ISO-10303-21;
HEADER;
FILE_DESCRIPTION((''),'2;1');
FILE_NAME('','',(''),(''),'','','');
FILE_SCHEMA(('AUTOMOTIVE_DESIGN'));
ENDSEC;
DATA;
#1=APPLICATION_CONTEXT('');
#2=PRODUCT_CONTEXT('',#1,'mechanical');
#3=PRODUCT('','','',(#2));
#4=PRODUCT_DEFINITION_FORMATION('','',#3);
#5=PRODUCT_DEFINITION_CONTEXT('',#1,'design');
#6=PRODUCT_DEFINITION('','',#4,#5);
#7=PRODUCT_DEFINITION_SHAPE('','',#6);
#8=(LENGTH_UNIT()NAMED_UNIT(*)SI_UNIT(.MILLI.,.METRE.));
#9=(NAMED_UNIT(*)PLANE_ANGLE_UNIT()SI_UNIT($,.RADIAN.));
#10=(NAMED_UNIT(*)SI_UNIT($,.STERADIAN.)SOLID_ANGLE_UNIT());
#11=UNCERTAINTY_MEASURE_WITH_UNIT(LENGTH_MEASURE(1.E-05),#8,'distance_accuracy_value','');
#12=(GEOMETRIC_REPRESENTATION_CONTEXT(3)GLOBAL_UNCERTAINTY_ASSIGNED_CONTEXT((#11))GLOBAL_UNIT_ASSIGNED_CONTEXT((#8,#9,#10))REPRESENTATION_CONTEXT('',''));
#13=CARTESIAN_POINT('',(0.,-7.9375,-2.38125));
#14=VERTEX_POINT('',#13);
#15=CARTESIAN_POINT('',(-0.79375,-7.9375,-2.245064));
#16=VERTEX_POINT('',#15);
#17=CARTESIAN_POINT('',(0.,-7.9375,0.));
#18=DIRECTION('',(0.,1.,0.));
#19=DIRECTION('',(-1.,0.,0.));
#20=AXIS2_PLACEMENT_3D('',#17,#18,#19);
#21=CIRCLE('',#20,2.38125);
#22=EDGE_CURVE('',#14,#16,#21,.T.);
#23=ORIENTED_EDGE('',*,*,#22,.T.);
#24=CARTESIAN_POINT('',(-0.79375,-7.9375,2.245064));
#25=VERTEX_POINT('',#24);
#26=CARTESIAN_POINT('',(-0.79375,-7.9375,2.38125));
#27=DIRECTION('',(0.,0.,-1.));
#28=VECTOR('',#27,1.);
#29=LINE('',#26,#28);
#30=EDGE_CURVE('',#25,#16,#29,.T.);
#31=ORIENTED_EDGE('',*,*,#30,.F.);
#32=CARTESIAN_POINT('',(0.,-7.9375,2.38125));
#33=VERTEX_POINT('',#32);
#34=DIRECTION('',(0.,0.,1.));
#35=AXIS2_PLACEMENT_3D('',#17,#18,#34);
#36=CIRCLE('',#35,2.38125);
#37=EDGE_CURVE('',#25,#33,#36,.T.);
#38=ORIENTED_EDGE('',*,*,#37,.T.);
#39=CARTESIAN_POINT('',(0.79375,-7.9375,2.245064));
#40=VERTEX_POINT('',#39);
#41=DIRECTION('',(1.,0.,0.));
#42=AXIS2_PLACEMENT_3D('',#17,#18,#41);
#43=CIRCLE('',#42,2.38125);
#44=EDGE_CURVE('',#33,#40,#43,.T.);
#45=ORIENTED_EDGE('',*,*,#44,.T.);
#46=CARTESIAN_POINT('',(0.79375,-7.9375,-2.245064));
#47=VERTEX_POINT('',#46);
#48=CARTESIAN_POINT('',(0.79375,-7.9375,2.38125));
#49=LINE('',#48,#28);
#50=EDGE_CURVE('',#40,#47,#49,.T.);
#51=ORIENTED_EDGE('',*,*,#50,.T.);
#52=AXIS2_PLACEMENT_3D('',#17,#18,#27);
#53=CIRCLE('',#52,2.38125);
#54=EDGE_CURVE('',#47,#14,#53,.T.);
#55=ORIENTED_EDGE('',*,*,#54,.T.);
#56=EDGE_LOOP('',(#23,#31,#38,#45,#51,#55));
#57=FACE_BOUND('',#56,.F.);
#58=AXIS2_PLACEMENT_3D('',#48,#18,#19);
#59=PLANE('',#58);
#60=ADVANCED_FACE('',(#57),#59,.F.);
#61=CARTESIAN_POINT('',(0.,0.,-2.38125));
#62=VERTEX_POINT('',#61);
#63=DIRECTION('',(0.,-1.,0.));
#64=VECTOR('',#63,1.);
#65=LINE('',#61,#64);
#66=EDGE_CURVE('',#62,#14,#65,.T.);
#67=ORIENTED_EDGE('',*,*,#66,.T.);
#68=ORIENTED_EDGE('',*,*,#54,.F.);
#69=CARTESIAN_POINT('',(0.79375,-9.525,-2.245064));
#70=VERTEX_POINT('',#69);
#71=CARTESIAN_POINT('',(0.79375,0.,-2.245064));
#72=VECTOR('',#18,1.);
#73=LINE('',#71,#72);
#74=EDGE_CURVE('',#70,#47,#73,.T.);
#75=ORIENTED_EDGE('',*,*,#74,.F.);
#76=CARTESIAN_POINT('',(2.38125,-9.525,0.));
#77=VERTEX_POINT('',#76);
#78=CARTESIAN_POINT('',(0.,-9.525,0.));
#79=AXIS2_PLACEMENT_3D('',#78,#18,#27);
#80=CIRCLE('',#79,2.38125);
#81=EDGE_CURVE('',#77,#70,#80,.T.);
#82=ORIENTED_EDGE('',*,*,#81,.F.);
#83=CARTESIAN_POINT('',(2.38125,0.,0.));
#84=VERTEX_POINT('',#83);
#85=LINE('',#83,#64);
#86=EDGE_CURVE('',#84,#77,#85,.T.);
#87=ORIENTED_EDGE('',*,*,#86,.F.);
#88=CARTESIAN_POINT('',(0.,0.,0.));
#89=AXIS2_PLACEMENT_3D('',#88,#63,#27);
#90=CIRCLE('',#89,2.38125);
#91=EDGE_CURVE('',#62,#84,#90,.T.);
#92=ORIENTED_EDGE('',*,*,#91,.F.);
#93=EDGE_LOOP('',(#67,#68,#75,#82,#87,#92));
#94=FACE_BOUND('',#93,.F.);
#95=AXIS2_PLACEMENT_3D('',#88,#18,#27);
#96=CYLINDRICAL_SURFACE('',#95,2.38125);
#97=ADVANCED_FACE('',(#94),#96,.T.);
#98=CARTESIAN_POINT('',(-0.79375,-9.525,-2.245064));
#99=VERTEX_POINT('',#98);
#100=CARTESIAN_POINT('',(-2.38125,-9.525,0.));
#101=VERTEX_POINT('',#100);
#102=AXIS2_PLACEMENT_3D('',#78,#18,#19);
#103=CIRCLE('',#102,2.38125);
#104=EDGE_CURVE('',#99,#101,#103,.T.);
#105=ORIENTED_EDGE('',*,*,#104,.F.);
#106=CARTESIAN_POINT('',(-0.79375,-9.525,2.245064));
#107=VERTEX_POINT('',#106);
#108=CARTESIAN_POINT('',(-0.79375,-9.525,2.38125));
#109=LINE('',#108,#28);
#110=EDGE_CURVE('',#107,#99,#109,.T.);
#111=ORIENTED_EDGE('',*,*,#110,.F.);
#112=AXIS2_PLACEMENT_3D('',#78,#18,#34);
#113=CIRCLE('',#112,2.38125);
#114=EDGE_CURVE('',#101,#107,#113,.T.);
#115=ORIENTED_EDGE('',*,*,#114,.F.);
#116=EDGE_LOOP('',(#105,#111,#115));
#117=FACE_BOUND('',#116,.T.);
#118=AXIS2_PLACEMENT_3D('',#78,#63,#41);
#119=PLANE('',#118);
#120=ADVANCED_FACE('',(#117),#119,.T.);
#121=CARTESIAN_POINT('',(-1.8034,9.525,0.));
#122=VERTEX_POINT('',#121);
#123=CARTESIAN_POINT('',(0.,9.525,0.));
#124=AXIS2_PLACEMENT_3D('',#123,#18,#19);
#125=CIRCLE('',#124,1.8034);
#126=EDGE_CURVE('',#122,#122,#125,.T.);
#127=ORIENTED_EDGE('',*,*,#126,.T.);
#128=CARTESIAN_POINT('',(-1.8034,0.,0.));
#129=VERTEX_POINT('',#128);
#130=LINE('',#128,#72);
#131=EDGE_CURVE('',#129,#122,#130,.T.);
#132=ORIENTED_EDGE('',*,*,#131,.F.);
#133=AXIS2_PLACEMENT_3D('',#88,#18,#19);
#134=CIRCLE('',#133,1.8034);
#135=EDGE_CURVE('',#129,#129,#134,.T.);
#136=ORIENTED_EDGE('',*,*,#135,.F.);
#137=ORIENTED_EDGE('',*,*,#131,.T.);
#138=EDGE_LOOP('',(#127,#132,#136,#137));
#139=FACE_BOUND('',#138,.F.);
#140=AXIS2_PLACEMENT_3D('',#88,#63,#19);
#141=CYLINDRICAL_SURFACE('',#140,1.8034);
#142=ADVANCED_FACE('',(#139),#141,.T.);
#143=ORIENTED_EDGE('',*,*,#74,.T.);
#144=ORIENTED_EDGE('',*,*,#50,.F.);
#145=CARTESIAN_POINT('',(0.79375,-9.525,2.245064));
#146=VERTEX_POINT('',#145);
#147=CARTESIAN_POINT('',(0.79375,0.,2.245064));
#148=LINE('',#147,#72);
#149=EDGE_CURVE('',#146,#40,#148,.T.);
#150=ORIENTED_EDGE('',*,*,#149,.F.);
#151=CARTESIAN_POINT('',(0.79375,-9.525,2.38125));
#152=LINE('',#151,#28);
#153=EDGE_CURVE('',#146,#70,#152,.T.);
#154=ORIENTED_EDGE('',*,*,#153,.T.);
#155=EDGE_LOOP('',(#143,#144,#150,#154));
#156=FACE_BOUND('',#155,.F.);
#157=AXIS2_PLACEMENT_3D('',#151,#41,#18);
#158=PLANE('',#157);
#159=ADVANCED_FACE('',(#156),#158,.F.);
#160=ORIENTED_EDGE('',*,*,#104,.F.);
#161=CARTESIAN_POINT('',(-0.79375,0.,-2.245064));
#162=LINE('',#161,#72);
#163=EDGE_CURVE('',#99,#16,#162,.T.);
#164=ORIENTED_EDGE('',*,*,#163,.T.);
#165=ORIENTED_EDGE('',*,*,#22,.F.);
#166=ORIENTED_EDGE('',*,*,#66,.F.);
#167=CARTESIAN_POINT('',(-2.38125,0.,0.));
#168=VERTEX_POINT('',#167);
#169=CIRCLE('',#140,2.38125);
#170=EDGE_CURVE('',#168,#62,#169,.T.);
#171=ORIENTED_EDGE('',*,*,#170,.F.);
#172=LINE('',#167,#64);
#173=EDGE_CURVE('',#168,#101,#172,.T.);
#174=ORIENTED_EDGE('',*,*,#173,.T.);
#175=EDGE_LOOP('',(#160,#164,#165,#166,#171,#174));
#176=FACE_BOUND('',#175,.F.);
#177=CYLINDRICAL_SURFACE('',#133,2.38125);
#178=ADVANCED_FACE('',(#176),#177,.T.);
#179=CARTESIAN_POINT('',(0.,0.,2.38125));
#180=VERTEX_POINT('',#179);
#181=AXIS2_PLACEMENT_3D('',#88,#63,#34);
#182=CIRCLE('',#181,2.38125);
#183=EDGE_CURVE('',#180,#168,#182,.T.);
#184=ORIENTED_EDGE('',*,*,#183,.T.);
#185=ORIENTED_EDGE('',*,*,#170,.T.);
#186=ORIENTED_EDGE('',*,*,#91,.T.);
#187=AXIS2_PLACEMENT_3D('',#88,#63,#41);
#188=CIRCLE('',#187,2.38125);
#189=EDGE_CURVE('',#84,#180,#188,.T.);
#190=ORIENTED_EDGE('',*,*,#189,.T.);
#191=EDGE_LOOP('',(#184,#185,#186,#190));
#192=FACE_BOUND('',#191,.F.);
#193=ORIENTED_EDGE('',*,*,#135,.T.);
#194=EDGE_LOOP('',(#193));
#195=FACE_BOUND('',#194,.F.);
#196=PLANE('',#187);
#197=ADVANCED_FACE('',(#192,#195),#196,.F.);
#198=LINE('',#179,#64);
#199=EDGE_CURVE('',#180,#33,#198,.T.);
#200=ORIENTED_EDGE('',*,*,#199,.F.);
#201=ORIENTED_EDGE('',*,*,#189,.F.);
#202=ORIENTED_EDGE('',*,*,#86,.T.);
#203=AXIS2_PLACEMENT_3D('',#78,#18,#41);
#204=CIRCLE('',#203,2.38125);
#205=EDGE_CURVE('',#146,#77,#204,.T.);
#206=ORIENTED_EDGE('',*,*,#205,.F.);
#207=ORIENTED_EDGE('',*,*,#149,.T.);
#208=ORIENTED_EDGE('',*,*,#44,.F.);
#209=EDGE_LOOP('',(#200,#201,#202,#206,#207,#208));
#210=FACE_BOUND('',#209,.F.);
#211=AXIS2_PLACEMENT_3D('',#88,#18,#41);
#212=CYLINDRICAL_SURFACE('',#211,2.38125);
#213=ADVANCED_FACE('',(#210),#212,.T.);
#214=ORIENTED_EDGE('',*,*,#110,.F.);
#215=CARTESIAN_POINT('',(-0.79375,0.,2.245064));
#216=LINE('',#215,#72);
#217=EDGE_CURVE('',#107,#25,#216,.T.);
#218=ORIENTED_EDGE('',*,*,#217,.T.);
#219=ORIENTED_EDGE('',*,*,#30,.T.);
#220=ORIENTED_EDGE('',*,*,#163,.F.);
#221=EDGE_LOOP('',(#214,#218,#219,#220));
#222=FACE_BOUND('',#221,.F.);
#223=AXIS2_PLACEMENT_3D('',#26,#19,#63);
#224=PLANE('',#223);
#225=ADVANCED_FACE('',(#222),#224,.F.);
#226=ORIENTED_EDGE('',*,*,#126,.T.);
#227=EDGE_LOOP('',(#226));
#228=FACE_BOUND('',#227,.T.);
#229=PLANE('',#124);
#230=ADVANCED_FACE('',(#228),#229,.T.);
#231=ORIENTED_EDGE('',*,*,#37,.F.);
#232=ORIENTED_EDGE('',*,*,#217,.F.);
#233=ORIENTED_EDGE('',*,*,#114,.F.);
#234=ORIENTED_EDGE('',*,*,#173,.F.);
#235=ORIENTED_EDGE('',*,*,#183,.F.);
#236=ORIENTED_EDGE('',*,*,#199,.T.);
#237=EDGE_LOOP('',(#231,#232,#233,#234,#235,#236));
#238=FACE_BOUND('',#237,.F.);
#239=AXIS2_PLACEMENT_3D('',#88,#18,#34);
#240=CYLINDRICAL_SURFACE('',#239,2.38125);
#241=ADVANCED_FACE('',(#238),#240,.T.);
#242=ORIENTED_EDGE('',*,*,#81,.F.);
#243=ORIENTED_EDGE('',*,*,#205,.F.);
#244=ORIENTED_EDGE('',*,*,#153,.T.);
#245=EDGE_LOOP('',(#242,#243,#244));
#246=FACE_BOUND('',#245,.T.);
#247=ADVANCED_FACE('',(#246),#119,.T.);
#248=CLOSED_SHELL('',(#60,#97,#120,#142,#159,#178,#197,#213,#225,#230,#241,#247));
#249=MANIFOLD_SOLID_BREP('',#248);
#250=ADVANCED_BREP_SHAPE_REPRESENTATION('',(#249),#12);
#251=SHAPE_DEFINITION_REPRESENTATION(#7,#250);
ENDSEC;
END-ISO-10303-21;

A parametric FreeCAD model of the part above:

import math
import FreeCAD as App
import Part
import Sketcher
from FreeCAD import Vector
Q = App.Units.Quantity

doc = App.newDocument("Part")
params = doc.addObject("Spreadsheet::Sheet", "Params")
for row, (alias, value) in enumerate([
    ("sketch1_width", "0.1875 in"),
    ("pad1_length", "0.375 in"),
    ("sketch2_width", "0.0625 in"),
    ("pocket1_length", "1 in"),
    ("sketch3_radius", "0.09375 in"),
    ("pocket2_length", "1 in"),
    ("sketch4_diameter", "0.142 in"),
    ("pad2_length", "0.375 in"),
], start=1):
    params.set(f"A{row}", alias)
    params.set(f"B{row}", "=" + value)
    params.setAlias(f"B{row}", alias)

body = doc.addObject("PartDesign::Body", "Body")

sketch1 = body.newObject("Sketcher::SketchObject", "Sketch")
sketch1.AttachmentSupport = (doc.getObject("XZ_Plane"), [""])
sketch1.MapMode = "FlatFace"
sketch1.addGeometry([
    Part.LineSegment(Vector(-2.4, 2.4, 0), Vector(-2.4, -2.4, 0)),
    Part.LineSegment(Vector(-2.4, -2.4, 0), Vector(2.4, -2.4, 0)),
    Part.LineSegment(Vector(2.4, -2.4, 0), Vector(2.4, 2.4, 0)),
    Part.LineSegment(Vector(2.4, 2.4, 0), Vector(-2.4, 2.4, 0)),
], False)
sketch1.addConstraint([
    Sketcher.Constraint("Coincident", 0, 2, 1, 1),
    Sketcher.Constraint("Coincident", 1, 2, 2, 1),
    Sketcher.Constraint("Coincident", 2, 2, 3, 1),
    Sketcher.Constraint("Coincident", 3, 2, 0, 1),
    Sketcher.Constraint("Vertical", 0),
    Sketcher.Constraint("Horizontal", 1),
    Sketcher.Constraint("Vertical", 2),
    Sketcher.Constraint("Horizontal", 3),
    Sketcher.Constraint("Symmetric", 0, 2, 2, 2, -1, 1),
    Sketcher.Constraint("Equal", 3, 0),
    Sketcher.Constraint("DistanceX", 1, 1, 1, 2, Q("0.1875 in")),
])
sketch1.setExpression("Constraints[10]", "Params.sketch1_width")
pad1 = body.newObject("PartDesign::Pad", "Pad")
pad1.Profile = sketch1
pad1.setExpression("Length", "Params.pad1_length")

sketch2 = body.newObject("Sketcher::SketchObject", "Sketch001")
sketch2.AttachmentSupport = (doc.getObject("XY_Plane"), [""])
sketch2.MapMode = "FlatFace"
sketch2.AttachmentOffset = App.Placement(Vector(0, 0, 0.09375 * 25.4), App.Rotation())
sketch2.addGeometry([
    Part.LineSegment(Vector(-0.8, -9.5, 0), Vector(0.8, -9.5, 0)),
    Part.LineSegment(Vector(0.8, -9.5, 0), Vector(0.8, -7.9, 0)),
    Part.LineSegment(Vector(0.8, -7.9, 0), Vector(-0.8, -7.9, 0)),
    Part.LineSegment(Vector(-0.8, -7.9, 0), Vector(-0.8, -9.5, 0)),
], False)
sketch2.addConstraint([
    Sketcher.Constraint("Coincident", 0, 2, 1, 1),
    Sketcher.Constraint("Coincident", 1, 2, 2, 1),
    Sketcher.Constraint("Coincident", 2, 2, 3, 1),
    Sketcher.Constraint("Coincident", 3, 2, 0, 1),
    Sketcher.Constraint("Horizontal", 0),
    Sketcher.Constraint("Vertical", 1),
    Sketcher.Constraint("Horizontal", 2),
    Sketcher.Constraint("Vertical", 3),
    Sketcher.Constraint("Equal", 2, 1),
    Sketcher.Constraint("DistanceX", 0, 1, 0, 2, Q("0.0625 in")),
    Sketcher.Constraint("DistanceX", -1, 1, 0, 2, Q("0.03125 in")),
    Sketcher.Constraint("DistanceY", 0, 2, -1, 1, Q("0.375 in")),
])
sketch2.setExpression("Constraints[9]", "Params.sketch2_width")
pocket1 = body.newObject("PartDesign::Pocket", "Pocket")
pocket1.Profile = sketch2
pocket1.setExpression("Length", "Params.pocket1_length")

sketch3 = body.newObject("Sketcher::SketchObject", "Sketch002")
sketch3.AttachmentSupport = (doc.getObject("XZ_Plane"), [""])
sketch3.MapMode = "FlatFace"
sketch3.addGeometry([
    Part.ArcOfCircle(Part.Circle(Vector(0, 0, 0), Vector(0, 0, 1), 2.4), math.radians(0), math.radians(90)),
    Part.LineSegment(Vector(0, 2.4, 0), Vector(2.4, 2.4, 0)),
    Part.LineSegment(Vector(2.4, 2.4, 0), Vector(2.4, 0, 0)),
    Part.ArcOfCircle(Part.Circle(Vector(0, 0, 0), Vector(0, 0, 1), 2.4), math.radians(90), math.radians(180)),
    Part.LineSegment(Vector(-2.4, 0, 0), Vector(-2.4, 2.4, 0)),
    Part.LineSegment(Vector(-2.4, 2.4, 0), Vector(0, 2.4, 0)),
    Part.LineSegment(Vector(-2.4, -2.4, 0), Vector(-2.4, 0, 0)),
    Part.ArcOfCircle(Part.Circle(Vector(0, 0, 0), Vector(0, 0, 1), 2.4), math.radians(180), math.radians(270)),
    Part.LineSegment(Vector(0, -2.4, 0), Vector(-2.4, -2.4, 0)),
    Part.LineSegment(Vector(2.4, -2.4, 0), Vector(0, -2.4, 0)),
    Part.ArcOfCircle(Part.Circle(Vector(0, 0, 0), Vector(0, 0, 1), 2.4), math.radians(-90), math.radians(0)),
    Part.LineSegment(Vector(2.4, 0, 0), Vector(2.4, -2.4, 0)),
], False)
sketch3.addConstraint([
    Sketcher.Constraint("Tangent", 0, 2, 1, 1),
    Sketcher.Constraint("Coincident", 1, 2, 2, 1),
    Sketcher.Constraint("Tangent", 2, 2, 0, 1),
    Sketcher.Constraint("Tangent", 3, 2, 4, 1),
    Sketcher.Constraint("Coincident", 4, 2, 5, 1),
    Sketcher.Constraint("Tangent", 5, 2, 3, 1),
    Sketcher.Constraint("Tangent", 6, 2, 7, 1),
    Sketcher.Constraint("Tangent", 7, 2, 8, 1),
    Sketcher.Constraint("Coincident", 8, 2, 6, 1),
    Sketcher.Constraint("Tangent", 9, 2, 10, 1),
    Sketcher.Constraint("Tangent", 10, 2, 11, 1),
    Sketcher.Constraint("Coincident", 11, 2, 9, 1),
    Sketcher.Constraint("Horizontal", 1),
    Sketcher.Constraint("Vertical", 2),
    Sketcher.Constraint("Vertical", 4),
    Sketcher.Constraint("Horizontal", 5),
    Sketcher.Constraint("Vertical", 6),
    Sketcher.Constraint("Horizontal", 8),
    Sketcher.Constraint("Horizontal", 9),
    Sketcher.Constraint("Vertical", 11),
    Sketcher.Constraint("Coincident", 0, 3, -1, 1),
    Sketcher.Constraint("Coincident", 3, 3, -1, 1),
    Sketcher.Constraint("Coincident", 7, 3, -1, 1),
    Sketcher.Constraint("Coincident", 10, 3, -1, 1),
    Sketcher.Constraint("Equal", 0, 3),
    Sketcher.Constraint("Equal", 3, 7),
    Sketcher.Constraint("Equal", 7, 10),
    Sketcher.Constraint("Radius", 0, Q("0.09375 in")),
])
sketch3.setExpression("Constraints[27]", "Params.sketch3_radius")
pocket2 = body.newObject("PartDesign::Pocket", "Pocket001")
pocket2.Profile = sketch3
pocket2.setExpression("Length", "Params.pocket2_length")
pocket2.Reversed = True

sketch4 = body.newObject("Sketcher::SketchObject", "Sketch003")
sketch4.AttachmentSupport = (doc.getObject("XZ_Plane"), [""])
sketch4.MapMode = "FlatFace"
sketch4.addGeometry(Part.Circle(Vector(0, 0, 0), Vector(0, 0, 1), 1.8), False)
sketch4.addConstraint([
    Sketcher.Constraint("Coincident", 0, 3, -1, 1),
    Sketcher.Constraint("Diameter", 0, Q("0.142 in")),
])
sketch4.setExpression("Constraints[1]", "Params.sketch4_diameter")
pad2 = body.newObject("PartDesign::Pad", "Pad001")
pad2.Profile = sketch4
pad2.setExpression("Length", "Params.pad2_length")
pad2.Reversed = True

doc.recompute()
